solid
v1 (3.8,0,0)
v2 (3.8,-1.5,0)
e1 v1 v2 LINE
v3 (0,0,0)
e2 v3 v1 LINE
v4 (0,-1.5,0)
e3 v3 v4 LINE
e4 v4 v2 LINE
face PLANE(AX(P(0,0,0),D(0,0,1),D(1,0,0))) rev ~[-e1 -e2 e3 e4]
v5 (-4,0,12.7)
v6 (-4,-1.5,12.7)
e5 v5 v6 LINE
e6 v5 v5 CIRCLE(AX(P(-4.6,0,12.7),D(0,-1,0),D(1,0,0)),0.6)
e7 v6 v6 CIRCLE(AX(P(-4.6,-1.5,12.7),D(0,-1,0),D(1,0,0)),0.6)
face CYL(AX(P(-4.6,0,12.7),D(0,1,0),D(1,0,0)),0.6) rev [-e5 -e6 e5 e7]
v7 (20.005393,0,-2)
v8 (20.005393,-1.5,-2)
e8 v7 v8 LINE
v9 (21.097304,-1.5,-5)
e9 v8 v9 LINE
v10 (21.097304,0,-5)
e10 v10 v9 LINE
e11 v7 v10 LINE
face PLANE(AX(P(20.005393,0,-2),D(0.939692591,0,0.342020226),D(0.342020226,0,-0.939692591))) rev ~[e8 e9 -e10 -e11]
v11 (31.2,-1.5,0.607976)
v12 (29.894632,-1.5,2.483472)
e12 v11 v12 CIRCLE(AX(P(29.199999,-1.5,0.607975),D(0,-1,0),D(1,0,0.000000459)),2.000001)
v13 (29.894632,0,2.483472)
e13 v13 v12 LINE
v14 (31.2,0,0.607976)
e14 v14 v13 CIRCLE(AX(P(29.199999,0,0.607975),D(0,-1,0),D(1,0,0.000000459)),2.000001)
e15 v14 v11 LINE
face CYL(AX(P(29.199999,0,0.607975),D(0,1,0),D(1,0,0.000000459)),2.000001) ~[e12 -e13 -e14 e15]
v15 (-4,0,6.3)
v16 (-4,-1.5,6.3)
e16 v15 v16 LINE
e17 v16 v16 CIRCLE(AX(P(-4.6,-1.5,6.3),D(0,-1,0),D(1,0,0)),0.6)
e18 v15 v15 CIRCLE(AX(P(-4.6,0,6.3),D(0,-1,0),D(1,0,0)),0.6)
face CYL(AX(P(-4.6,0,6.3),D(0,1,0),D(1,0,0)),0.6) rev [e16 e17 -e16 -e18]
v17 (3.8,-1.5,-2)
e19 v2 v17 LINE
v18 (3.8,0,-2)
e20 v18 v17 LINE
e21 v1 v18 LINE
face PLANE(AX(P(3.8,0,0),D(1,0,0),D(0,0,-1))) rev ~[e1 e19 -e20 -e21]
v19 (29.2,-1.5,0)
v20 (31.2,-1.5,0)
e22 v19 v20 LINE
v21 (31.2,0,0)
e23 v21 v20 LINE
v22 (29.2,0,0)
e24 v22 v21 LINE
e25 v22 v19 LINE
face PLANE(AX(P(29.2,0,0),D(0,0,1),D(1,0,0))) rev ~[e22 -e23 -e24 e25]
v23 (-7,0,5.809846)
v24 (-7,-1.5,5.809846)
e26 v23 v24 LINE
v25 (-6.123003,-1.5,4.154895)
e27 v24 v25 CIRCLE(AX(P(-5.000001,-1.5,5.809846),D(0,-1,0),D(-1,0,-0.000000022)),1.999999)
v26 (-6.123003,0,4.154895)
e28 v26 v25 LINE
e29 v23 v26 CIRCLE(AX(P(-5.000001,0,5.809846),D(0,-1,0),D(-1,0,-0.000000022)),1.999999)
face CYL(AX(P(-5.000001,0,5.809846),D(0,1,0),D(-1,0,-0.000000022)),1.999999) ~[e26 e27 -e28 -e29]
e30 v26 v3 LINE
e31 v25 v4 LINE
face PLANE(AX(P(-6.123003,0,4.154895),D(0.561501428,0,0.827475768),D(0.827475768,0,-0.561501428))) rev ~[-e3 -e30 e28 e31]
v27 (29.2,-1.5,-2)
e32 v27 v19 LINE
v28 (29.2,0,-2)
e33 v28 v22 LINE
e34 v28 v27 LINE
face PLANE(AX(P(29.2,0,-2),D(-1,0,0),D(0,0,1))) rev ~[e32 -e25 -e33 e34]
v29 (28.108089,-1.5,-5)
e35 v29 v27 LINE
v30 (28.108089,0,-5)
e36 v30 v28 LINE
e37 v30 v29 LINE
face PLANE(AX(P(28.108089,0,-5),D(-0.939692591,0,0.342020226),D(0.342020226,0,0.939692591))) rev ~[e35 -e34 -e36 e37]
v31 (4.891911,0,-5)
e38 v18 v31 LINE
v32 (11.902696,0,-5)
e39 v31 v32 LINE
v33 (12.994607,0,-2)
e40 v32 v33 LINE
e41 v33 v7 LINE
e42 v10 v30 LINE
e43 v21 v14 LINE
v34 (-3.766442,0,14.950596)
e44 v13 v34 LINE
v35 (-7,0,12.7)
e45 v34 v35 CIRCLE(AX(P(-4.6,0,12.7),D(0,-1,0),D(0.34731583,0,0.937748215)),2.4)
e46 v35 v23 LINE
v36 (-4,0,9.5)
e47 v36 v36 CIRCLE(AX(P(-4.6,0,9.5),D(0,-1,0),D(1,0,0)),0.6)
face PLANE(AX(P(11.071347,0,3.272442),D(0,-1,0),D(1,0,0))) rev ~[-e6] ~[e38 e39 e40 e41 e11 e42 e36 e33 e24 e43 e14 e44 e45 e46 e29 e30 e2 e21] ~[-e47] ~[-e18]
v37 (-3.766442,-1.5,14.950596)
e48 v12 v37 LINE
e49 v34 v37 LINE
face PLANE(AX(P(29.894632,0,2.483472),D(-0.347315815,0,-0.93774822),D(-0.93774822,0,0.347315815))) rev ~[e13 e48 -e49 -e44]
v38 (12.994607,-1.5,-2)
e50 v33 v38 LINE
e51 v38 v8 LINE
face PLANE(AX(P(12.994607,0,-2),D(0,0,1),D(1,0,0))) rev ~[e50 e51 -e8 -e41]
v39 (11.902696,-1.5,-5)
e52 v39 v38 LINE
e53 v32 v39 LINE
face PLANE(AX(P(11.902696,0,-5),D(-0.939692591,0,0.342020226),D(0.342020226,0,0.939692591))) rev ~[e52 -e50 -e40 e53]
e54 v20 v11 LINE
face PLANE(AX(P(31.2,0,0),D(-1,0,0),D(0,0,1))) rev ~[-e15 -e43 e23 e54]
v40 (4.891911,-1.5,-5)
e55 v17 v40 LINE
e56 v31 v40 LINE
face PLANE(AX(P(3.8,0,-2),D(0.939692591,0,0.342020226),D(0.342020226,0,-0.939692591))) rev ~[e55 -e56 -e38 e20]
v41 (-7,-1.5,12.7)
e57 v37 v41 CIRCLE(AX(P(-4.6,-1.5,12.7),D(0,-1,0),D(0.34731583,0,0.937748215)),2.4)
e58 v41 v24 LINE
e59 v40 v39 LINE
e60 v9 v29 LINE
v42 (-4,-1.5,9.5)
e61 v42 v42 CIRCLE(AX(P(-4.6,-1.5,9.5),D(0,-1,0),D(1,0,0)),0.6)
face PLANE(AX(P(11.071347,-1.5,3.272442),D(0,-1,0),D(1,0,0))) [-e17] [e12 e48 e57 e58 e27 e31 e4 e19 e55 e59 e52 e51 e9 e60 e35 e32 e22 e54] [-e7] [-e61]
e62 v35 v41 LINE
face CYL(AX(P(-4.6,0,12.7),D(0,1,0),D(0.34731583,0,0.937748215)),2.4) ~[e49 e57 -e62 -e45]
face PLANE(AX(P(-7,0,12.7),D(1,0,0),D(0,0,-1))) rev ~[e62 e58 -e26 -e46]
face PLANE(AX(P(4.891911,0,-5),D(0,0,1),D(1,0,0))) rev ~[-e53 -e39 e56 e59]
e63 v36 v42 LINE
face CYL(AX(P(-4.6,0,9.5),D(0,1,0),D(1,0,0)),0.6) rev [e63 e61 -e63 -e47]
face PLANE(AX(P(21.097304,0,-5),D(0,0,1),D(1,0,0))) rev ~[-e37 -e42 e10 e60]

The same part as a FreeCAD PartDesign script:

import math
import FreeCAD as App
import Part
import Sketcher
Q = App.Units.Quantity

doc = App.newDocument("Part")
body = doc.addObject("PartDesign::Body", "Body")

# Sketch on XZ plane
sketch1 = body.newObject("Sketcher::SketchObject", "Sketch")
sketch1.AttachmentSupport = (doc.getObject("XZ_Plane"), [""])
sketch1.MapMode = "FlatFace"
sketch1.addGeometry([
    Part.LineSegment(App.Vector(-6.123003, 4.154895, 0), App.Vector(0, 0, 0)),  # 0
    Part.LineSegment(App.Vector(0, 0, 0), App.Vector(3.8, 0, 0)),  # 1
    Part.LineSegment(App.Vector(3.8, 0, 0), App.Vector(3.8, -2, 0)),  # 2
    Part.LineSegment(App.Vector(3.8, -2, 0), App.Vector(4.891911, -5, 0)),  # 3
    Part.LineSegment(App.Vector(4.891911, -5, 0), App.Vector(11.902696, -5, 0)),  # 4
    Part.LineSegment(App.Vector(11.902696, -5, 0), App.Vector(12.994607, -2, 0)),  # 5
    Part.LineSegment(App.Vector(12.994607, -2, 0), App.Vector(20.005393, -2, 0)),  # 6
    Part.LineSegment(App.Vector(20.005393, -2, 0), App.Vector(21.097304, -5, 0)),  # 7
    Part.LineSegment(App.Vector(21.097304, -5, 0), App.Vector(28.108089, -5, 0)),  # 8
    Part.LineSegment(App.Vector(28.108089, -5, 0), App.Vector(29.2, -2, 0)),  # 9
    Part.LineSegment(App.Vector(29.2, -2, 0), App.Vector(29.2, 0, 0)),  # 10
    Part.LineSegment(App.Vector(29.2, 0, 0), App.Vector(31.2, 0, 0)),  # 11
    Part.LineSegment(App.Vector(31.2, 0, 0), App.Vector(31.2, 0.607976, 0)),  # 12
    Part.ArcOfCircle(Part.Circle(App.Vector(29.199999, 0.607975, 0), App.Vector(0, 0, 1), 2.000001), math.radians(0.000026), math.radians(69.676745)),  # 13
    Part.LineSegment(App.Vector(29.894632, 2.483472, 0), App.Vector(-3.766442, 14.950596, 0)),  # 14
    Part.ArcOfCircle(Part.Circle(App.Vector(-4.6, 12.7, 0), App.Vector(0, 0, 1), 2.4), math.radians(69.676773), math.radians(180.000007)),  # 15
    Part.LineSegment(App.Vector(-7, 12.7, 0), App.Vector(-7, 5.809846, 0)),  # 16
    Part.ArcOfCircle(Part.Circle(App.Vector(-5.000001, 5.809846, 0), App.Vector(0, 0, 1), 1.999999), math.radians(-179.999999), math.radians(-124.159689)),  # 17
    Part.Circle(App.Vector(-4.6, 6.3, 0), App.Vector(0, 0, 1), 0.6),  # 18
    Part.Circle(App.Vector(-4.6, 9.5, 0), App.Vector(0, 0, 1), 0.6),  # 19
    Part.Circle(App.Vector(-4.6, 12.7, 0), App.Vector(0, 0, 1), 0.6),  # 20
], False)
sketch1.addConstraint([
    Sketcher.Constraint("Coincident", 0, 2, 1, 1),
    Sketcher.Constraint("Coincident", 1, 2, 2, 1),
    Sketcher.Constraint("Coincident", 2, 2, 3, 1),
    Sketcher.Constraint("Coincident", 3, 2, 4, 1),
    Sketcher.Constraint("Coincident", 4, 2, 5, 1),
    Sketcher.Constraint("Coincident", 5, 2, 6, 1),
    Sketcher.Constraint("Coincident", 6, 2, 7, 1),
    Sketcher.Constraint("Coincident", 7, 2, 8, 1),
    Sketcher.Constraint("Coincident", 8, 2, 9, 1),
    Sketcher.Constraint("Coincident", 9, 2, 10, 1),
    Sketcher.Constraint("Coincident", 10, 2, 11, 1),
    Sketcher.Constraint("Coincident", 11, 2, 12, 1),
    Sketcher.Constraint("Tangent", 12, 2, 13, 1),
    Sketcher.Constraint("Tangent", 13, 2, 14, 1),
    Sketcher.Constraint("Tangent", 14, 2, 15, 1),
    Sketcher.Constraint("Tangent", 15, 2, 16, 1),
    Sketcher.Constraint("Tangent", 16, 2, 17, 1),
    Sketcher.Constraint("Tangent", 17, 2, 0, 1),
    Sketcher.Constraint("Horizontal", 1),
    Sketcher.Constraint("Vertical", 2),
    Sketcher.Constraint("Horizontal", 4),
    Sketcher.Constraint("Horizontal", 6),
    Sketcher.Constraint("Horizontal", 8),
    Sketcher.Constraint("Vertical", 10),
    Sketcher.Constraint("Horizontal", 11),
    Sketcher.Constraint("Vertical", 12),
    Sketcher.Constraint("Vertical", 16),
    Sketcher.Constraint("Coincident", 0, 2, -1, 1),
    Sketcher.Constraint("Coincident", 20, 3, 15, 3),
    Sketcher.Constraint("Equal", 13, 17),
    Sketcher.Constraint("Equal", 18, 19),
    Sketcher.Constraint("Equal", 19, 20),
    Sketcher.Constraint("PointOnObject", 10, 2, -1),
    Sketcher.Constraint("Parallel", 3, 7),
    Sketcher.Constraint("Parallel", 5, 9),
    Sketcher.Constraint("Horizontal", 2, 2, 5, 2),
    Sketcher.Constraint("Horizontal", 4, 2, 7, 2),
    Sketcher.Constraint("Horizontal", 6, 2, 9, 2),
    Sketcher.Constraint("Vertical", 15, 3, 18, 3),
    Sketcher.Constraint("Vertical", 18, 3, 19, 3),
    Sketcher.Constraint("Vertical", 13, 3, 9, 2),
    Sketcher.Constraint("Equal", 4, 6),
    Sketcher.Constraint("Equal", 6, 8),
    Sketcher.Constraint("Equal", 11, 2),
    Sketcher.Constraint("Equal", 3, 5),
    Sketcher.Constraint("Radius", 13, Q("2.000001 mm")),
    Sketcher.Constraint("Diameter", 18, Q("1.2 mm")),
    Sketcher.Constraint("Radius", 15, Q("2.4 mm")),
    Sketcher.Constraint("Angle", 3, Q("-69.999995 deg")),
    Sketcher.Constraint("DistanceX", 1, 1, 1, 2, Q("3.8 mm")),
    Sketcher.Constraint("DistanceX", 17, 3, -1, 1, Q("5.000001 mm")),
    Sketcher.Constraint("DistanceY", 3, 2, -1, 1, Q("5 mm")),
    Sketcher.Constraint("DistanceX", -1, 1, 13, 3, Q("29.199999 mm")),
    Sketcher.Constraint("DistanceY", -1, 1, 15, 3, Q("12.7 mm")),
    Sketcher.Constraint("DistanceY", -1, 1, 18, 3, Q("6.3 mm")),
    Sketcher.Constraint("DistanceY", -1, 1, 19, 3, Q("9.5 mm")),
    Sketcher.Constraint("Distance", 14, Q("35.895642 mm")),
    Sketcher.Constraint("DistanceY", 16, 2, 16, 1, Q("6.890154 mm")),
])
pad1 = body.newObject("PartDesign::Pad", "Pad")
pad1.Profile = sketch1
pad1.Length = 1.5

doc.recompute()
